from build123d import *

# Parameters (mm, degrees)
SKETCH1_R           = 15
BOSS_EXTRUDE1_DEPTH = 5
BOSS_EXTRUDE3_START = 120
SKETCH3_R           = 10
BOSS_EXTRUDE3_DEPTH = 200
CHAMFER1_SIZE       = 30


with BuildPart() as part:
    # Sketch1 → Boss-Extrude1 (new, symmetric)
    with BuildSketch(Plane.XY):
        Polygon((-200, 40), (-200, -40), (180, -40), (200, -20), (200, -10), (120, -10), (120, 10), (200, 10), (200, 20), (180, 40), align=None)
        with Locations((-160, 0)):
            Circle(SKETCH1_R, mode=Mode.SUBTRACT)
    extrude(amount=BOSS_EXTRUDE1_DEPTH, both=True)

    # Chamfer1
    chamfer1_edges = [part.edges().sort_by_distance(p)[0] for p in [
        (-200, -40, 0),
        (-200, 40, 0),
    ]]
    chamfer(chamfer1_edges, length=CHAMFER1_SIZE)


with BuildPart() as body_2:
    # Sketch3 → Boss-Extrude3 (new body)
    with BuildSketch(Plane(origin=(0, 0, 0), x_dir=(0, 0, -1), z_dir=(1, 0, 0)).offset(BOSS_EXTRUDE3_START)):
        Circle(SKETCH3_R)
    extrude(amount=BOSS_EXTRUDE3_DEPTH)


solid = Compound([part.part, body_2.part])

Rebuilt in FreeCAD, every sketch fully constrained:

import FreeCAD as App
import Part
import Sketcher


def edges_at(feature, points):
    """Names of the edges that pass closest to the given points."""
    edges = feature.Shape.Edges
    near = lambda p: min(range(len(edges)), key=lambda i: edges[i].distToShape(Part.Vertex(*p))[0])
    return sorted({f"Edge{near(p) + 1}" for p in points})


def add_polygon(sketch, points):
    """Adds a closed chain of lines whose ends are joined by coincident constraints."""
    first, n = sketch.GeometryCount, len(points)
    for a, b in zip(points, points[1:] + points[:1]):
        sketch.addGeometry(Part.LineSegment(App.Vector(*a, 0), App.Vector(*b, 0)), False)
    for i in range(n):
        sketch.addConstraint(Sketcher.Constraint("Coincident", first + i, 2, first + (i + 1) % n, 1))

doc = App.newDocument("Part")
body = doc.addObject("PartDesign::Body", "Body")

sketch1 = body.newObject("Sketcher::SketchObject", "Sketch")
sketch1.AttachmentSupport = (doc.getObject("XY_Plane"), [""])
sketch1.MapMode = "FlatFace"
add_polygon(sketch1, [(-200, 40), (-200, -40), (180, -40), (200, -20), (200, -10), (120, -10), (120, 10), (200, 10), (200, 20), (180, 40)])
sketch1.addGeometry(Part.Circle(App.Vector(-160, 0, 0), App.Vector(0, 0, 1), 15), False)
sketch1.addConstraint(Sketcher.Constraint("Vertical", 0))
sketch1.addConstraint(Sketcher.Constraint("Horizontal", 1))
sketch1.addConstraint(Sketcher.Constraint("Vertical", 3))
sketch1.addConstraint(Sketcher.Constraint("Horizontal", 4))
sketch1.addConstraint(Sketcher.Constraint("Vertical", 5))
sketch1.addConstraint(Sketcher.Constraint("Horizontal", 6))
sketch1.addConstraint(Sketcher.Constraint("Vertical", 7))
sketch1.addConstraint(Sketcher.Constraint("Horizontal", 9))
sketch1.addConstraint(Sketcher.Constraint("Symmetric", 3, 2, 6, 2, -1))
sketch1.addConstraint(Sketcher.Constraint("Symmetric", 1, 2, 8, 2, -1))
sketch1.addConstraint(Sketcher.Constraint("PointOnObject", 10, 3, -1))
sketch1.addConstraint(Sketcher.Constraint("Perpendicular", 2, 8))
sketch1.addConstraint(Sketcher.Constraint("Equal", 6, 0))
sketch1.addConstraint(Sketcher.Constraint("Equal", 3, 7))
sketch1.addConstraint(Sketcher.Constraint("Diameter", 10, 30.0))
sketch1.addConstraint(Sketcher.Constraint("DistanceX", 1, 1, 1, 2, 380.0))
sketch1.addConstraint(Sketcher.Constraint("DistanceX", 4, 2, 4, 1, 80.0))
sketch1.addConstraint(Sketcher.Constraint("DistanceY", 3, 1, 3, 2, 10.0))
sketch1.addConstraint(Sketcher.Constraint("DistanceY", 5, 1, 5, 2, 20.0))
sketch1.addConstraint(Sketcher.Constraint("DistanceX", 10, 3, -1, 1, 160.0))
sketch1.addConstraint(Sketcher.Constraint("DistanceX", 0, 2, -1, 1, 200.0))
pad1 = body.newObject("PartDesign::Pad", "Pad")
pad1.Profile = sketch1
pad1.Length = 10
pad1.Midplane = True
doc.recompute()

chamfer = body.newObject("PartDesign::Chamfer", "Chamfer")
chamfer.Base = (pad1, edges_at(pad1, [(-200, -40, 0), (-200, 40, 0)]))
chamfer.Size = 30
body2 = doc.addObject("PartDesign::Body", "Body001")

sketch2 = body2.newObject("Sketcher::SketchObject", "Sketch001")
sketch2.AttachmentSupport = (doc.getObject("YZ_Plane001"), [""])
sketch2.MapMode = "FlatFace"
sketch2.AttachmentOffset = App.Placement(App.Vector(0, 0, 120), App.Rotation())
sketch2.addGeometry(Part.Circle(App.Vector(0, 0, 0), App.Vector(0, 0, 1), 10), False)
sketch2.addConstraint(Sketcher.Constraint("Coincident", 0, 3, -1, 1))
sketch2.addConstraint(Sketcher.Constraint("Diameter", 0, 20.0))
pad2 = body2.newObject("PartDesign::Pad", "Pad001")
pad2.Profile = sketch2
pad2.Length = 200

doc.recompute()
